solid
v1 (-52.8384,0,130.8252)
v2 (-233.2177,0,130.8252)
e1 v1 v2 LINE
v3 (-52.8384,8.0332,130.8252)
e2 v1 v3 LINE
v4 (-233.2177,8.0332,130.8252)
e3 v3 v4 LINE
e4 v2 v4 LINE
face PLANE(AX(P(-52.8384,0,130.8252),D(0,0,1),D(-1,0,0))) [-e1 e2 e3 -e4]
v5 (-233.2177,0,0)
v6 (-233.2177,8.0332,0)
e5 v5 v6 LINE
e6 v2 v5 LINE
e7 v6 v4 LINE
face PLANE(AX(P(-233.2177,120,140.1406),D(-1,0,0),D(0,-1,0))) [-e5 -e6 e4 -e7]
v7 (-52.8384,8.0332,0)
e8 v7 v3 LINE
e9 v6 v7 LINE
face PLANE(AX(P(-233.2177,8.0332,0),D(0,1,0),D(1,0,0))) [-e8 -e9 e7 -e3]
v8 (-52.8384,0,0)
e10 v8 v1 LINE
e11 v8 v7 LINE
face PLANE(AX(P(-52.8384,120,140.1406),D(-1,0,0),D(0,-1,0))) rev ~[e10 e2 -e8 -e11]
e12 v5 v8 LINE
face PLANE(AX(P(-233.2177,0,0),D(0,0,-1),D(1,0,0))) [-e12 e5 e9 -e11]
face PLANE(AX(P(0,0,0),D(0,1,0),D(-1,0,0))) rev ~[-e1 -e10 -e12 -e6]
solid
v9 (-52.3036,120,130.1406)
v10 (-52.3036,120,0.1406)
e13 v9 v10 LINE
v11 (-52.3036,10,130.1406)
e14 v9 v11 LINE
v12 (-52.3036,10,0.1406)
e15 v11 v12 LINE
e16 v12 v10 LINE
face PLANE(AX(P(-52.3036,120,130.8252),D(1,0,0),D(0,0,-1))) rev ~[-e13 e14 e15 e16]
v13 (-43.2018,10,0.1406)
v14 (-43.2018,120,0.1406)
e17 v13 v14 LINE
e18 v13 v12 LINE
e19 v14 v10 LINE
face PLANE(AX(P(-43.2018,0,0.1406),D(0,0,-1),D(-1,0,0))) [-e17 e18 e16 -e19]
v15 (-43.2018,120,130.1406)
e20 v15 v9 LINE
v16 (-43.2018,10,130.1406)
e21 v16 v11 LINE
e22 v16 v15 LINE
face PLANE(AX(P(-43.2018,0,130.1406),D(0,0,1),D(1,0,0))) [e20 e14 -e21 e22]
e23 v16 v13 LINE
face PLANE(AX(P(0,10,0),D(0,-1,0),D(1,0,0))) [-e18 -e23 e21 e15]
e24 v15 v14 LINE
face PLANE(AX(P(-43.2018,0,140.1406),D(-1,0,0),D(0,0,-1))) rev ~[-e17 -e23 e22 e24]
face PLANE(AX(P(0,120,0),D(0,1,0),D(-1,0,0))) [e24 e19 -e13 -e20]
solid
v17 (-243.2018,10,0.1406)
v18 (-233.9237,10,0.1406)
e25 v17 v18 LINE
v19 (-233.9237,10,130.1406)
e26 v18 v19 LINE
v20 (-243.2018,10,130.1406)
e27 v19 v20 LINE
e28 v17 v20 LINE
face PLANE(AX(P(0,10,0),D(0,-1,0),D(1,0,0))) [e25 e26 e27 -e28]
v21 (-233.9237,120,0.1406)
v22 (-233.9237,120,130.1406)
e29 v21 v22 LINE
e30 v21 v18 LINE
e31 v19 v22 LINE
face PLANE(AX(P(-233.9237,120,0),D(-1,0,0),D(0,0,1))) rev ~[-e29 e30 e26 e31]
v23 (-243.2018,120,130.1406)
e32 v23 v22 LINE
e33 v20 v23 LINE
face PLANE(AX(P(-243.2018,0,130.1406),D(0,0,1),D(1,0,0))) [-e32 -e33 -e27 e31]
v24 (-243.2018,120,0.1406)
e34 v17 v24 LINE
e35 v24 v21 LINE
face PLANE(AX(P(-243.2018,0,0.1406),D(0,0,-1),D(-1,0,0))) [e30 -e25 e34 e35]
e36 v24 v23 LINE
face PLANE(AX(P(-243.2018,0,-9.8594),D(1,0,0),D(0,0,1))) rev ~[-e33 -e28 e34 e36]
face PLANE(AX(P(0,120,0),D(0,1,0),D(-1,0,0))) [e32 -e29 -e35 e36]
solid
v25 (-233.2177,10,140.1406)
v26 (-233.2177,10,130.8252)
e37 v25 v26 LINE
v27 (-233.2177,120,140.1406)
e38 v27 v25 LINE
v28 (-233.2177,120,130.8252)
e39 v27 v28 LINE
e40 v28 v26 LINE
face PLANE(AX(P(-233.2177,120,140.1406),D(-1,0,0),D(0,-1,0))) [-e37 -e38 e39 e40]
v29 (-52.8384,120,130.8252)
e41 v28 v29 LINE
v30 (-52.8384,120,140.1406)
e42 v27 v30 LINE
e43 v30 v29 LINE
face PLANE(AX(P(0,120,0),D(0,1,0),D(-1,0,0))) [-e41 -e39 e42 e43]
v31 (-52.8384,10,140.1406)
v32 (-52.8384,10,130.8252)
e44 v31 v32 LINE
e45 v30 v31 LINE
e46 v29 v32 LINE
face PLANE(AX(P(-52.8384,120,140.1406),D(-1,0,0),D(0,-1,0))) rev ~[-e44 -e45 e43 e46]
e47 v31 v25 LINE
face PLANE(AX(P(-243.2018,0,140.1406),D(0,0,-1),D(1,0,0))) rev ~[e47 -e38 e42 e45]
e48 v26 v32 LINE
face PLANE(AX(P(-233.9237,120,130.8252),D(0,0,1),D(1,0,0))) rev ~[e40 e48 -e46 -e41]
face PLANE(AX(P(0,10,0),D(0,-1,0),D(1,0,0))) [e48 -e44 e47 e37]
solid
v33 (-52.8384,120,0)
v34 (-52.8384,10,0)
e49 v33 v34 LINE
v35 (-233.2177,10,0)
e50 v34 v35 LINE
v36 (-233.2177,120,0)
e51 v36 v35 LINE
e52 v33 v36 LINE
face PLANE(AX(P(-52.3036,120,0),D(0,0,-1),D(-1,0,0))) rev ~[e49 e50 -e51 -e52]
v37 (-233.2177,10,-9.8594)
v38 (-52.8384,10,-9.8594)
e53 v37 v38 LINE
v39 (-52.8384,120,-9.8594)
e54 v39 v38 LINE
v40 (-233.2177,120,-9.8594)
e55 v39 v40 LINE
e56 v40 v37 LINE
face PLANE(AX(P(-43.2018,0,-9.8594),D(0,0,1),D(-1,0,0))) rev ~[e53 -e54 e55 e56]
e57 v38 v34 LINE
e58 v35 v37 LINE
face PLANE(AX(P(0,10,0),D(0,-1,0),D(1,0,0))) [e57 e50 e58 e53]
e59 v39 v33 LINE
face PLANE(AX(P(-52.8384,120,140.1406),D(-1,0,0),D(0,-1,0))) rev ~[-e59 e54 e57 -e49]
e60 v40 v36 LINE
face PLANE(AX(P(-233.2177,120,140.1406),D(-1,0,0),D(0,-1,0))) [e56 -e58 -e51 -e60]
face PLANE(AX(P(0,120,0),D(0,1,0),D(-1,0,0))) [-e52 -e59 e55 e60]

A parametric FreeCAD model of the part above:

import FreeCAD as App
import Part
import Sketcher
from FreeCAD import Vector


def add_polygon(sketch, points):
    """Adds a closed chain of lines whose ends are joined by coincident constraints."""
    first, n = sketch.GeometryCount, len(points)
    for a, b in zip(points, points[1:] + points[:1]):
        sketch.addGeometry(Part.LineSegment(App.Vector(*a, 0), App.Vector(*b, 0)), False)
    for i in range(n):
        sketch.addConstraint(Sketcher.Constraint("Coincident", first + i, 2, first + (i + 1) % n, 1))

doc = App.newDocument("Part")
params = doc.addObject("Spreadsheet::Sheet", "Params")
for row, (alias, value) in enumerate([
    ("sketch1_width", "200 mm"),
    ("sketch1_height", "150 mm"),
    ("pad1_length", "120 mm"),
    ("sketch2_width", "181.62 mm"),
    ("pocket1_length", "110 mm"),
    ("sketch3_height", "120 mm"),
    ("pocket2_length", "10 mm"),
    ("sketch4_height", "120 mm"),
    ("pocket3_length", "10 mm"),
    ("sketch5_height", "120 mm"),
    ("pocket4_length", "10 mm"),
    ("sketch6_height", "120 mm"),
    ("pocket5_length", "10 mm"),
    ("sketch7_height", "130 mm"),
    ("pocket6_length", "10 mm"),
    ("pocket7_length", "10 mm"),
    ("pocket8_length", "10 mm"),
    ("pocket9_length", "10 mm"),
], start=1):
    params.set(f"A{row}", alias)
    params.set(f"B{row}", "=" + value)
    params.setAlias(f"B{row}", alias)

body = doc.addObject("PartDesign::Body", "Body")
body.AllowCompound = True

# Sketch on XZ plane
sketch1 = body.newObject("Sketcher::SketchObject", "Sketch")
sketch1.AttachmentSupport = (doc.getObject("XZ_Plane"), [""])
sketch1.MapMode = "FlatFace"
add_polygon(sketch1, [(-243.2018, -9.8594), (-243.2018, 140.1406), (-43.2018, 140.1406), (-43.2018, -9.8594)])  # lines 0-3
sketch1.addConstraint(Sketcher.Constraint("Vertical", 0))
sketch1.addConstraint(Sketcher.Constraint("Horizontal", 1))
sketch1.addConstraint(Sketcher.Constraint("Vertical", 2))
sketch1.addConstraint(Sketcher.Constraint("Horizontal", 3))
sketch1.addConstraint(Sketcher.Constraint("DistanceX", 1, 1, 1, 2, 200.0))
sketch1.addConstraint(Sketcher.Constraint("DistanceY", 0, 1, 0, 2, 150.0))
sketch1.addConstraint(Sketcher.Constraint("DistanceX", 0, 2, -1, 1, 243.2018))
sketch1.addConstraint(Sketcher.Constraint("DistanceY", -1, 1, 0, 2, 140.1406))
sketch1.setExpression("Constraints[8]", "Params.sketch1_width")
sketch1.setExpression("Constraints[9]", "Params.sketch1_height")
pad1 = body.newObject("PartDesign::Pad", "Pad")
pad1.Profile = sketch1
pad1.setExpression("Length", "Params.pad1_length")
pad1.Reversed = True

# Sketch on XZ plane
sketch2 = body.newObject("Sketcher::SketchObject", "Sketch001")
sketch2.AttachmentSupport = (doc.getObject("XZ_Plane"), [""])
sketch2.MapMode = "FlatFace"
sketch2.AttachmentOffset = App.Placement(Vector(0, 0, -120), App.Rotation())
add_polygon(sketch2, [(-233.9237, 0), (-233.9237, 130.8252), (-52.3036, 130.8252), (-52.3036, 0)])  # lines 0-3
sketch2.addConstraint(Sketcher.Constraint("Vertical", 0))
sketch2.addConstraint(Sketcher.Constraint("Horizontal", 1))
sketch2.addConstraint(Sketcher.Constraint("Vertical", 2))
sketch2.addConstraint(Sketcher.Constraint("Horizontal", 3))
sketch2.addConstraint(Sketcher.Constraint("PointOnObject", 2, 2, -1))
sketch2.addConstraint(Sketcher.Constraint("DistanceX", 1, 1, 1, 2, 181.62))
sketch2.addConstraint(Sketcher.Constraint("DistanceY", 0, 1, 0, 2, 130.8252))
sketch2.addConstraint(Sketcher.Constraint("DistanceX", 0, 2, -1, 1, 233.9237))
sketch2.setExpression("Constraints[9]", "Params.sketch2_width")
pocket1 = body.newObject("PartDesign::Pocket", "Pocket")
pocket1.Profile = sketch2
pocket1.setExpression("Length", "Params.pocket1_length")
pocket1.Reversed = True

# Sketch on XY plane
sketch3 = body.newObject("Sketcher::SketchObject", "Sketch002")
sketch3.AttachmentSupport = (doc.getObject("XY_Plane"), [""])
sketch3.MapMode = "FlatFace"
sketch3.AttachmentOffset = App.Placement(Vector(0, 0, 140.1406), App.Rotation())
add_polygon(sketch3, [(-243.2018, 120), (-243.2018, 0), (-233.2177, 0), (-233.2177, 120)])  # lines 0-3
sketch3.addConstraint(Sketcher.Constraint("Vertical", 0))
sketch3.addConstraint(Sketcher.Constraint("Horizontal", 1))
sketch3.addConstraint(Sketcher.Constraint("Vertical", 2))
sketch3.addConstraint(Sketcher.Constraint("Horizontal", 3))
sketch3.addConstraint(Sketcher.Constraint("PointOnObject", 0, 2, -1))
sketch3.addConstraint(Sketcher.Constraint("DistanceY", 0, 2, 0, 1, 120.0))
sketch3.addConstraint(Sketcher.Constraint("DistanceX", 1, 1, 1, 2, 9.984))
sketch3.addConstraint(Sketcher.Constraint("DistanceX", 0, 2, -1, 1, 243.2018))
sketch3.setExpression("Constraints[9]", "Params.sketch3_height")
pocket2 = body.newObject("PartDesign::Pocket", "Pocket001")
pocket2.Profile = sketch3
pocket2.setExpression("Length", "Params.pocket2_length")

# Sketch on XY plane
sketch4 = body.newObject("Sketcher::SketchObject", "Sketch003")
sketch4.AttachmentSupport = (doc.getObject("XY_Plane"), [""])
sketch4.MapMode = "FlatFace"
sketch4.AttachmentOffset = App.Placement(Vector(0, 0, 140.1406), App.Rotation())
add_polygon(sketch4, [(-43.2018, 0), (-43.2018, 120), (-52.8384, 120), (-52.8384, 0)])  # lines 0-3
sketch4.addConstraint(Sketcher.Constraint("Vertical", 0))
sketch4.addConstraint(Sketcher.Constraint("Horizontal", 1))
sketch4.addConstraint(Sketcher.Constraint("Vertical", 2))
sketch4.addConstraint(Sketcher.Constraint("Horizontal", 3))
sketch4.addConstraint(Sketcher.Constraint("PointOnObject", 2, 2, -1))
sketch4.addConstraint(Sketcher.Constraint("DistanceY", 0, 1, 0, 2, 120.0))
sketch4.addConstraint(Sketcher.Constraint("DistanceX", 1, 2, 1, 1, 9.6366))
sketch4.addConstraint(Sketcher.Constraint("DistanceX", 0, 2, -1, 1, 43.2018))
sketch4.setExpression("Constraints[9]", "Params.sketch4_height")
pocket3 = body.newObject("PartDesign::Pocket", "Pocket002")
pocket3.Profile = sketch4
pocket3.setExpression("Length", "Params.pocket3_length")

# Sketch on XY plane
sketch5 = body.newObject("Sketcher::SketchObject", "Sketch004")
sketch5.AttachmentSupport = (doc.getObject("XY_Plane"), [""])
sketch5.MapMode = "FlatFace"
sketch5.AttachmentOffset = App.Placement(Vector(0, 0, -9.8594), App.Rotation())
add_polygon(sketch5, [(-52.8384, 120), (-43.2018, 120), (-43.2018, 0), (-52.8384, 0)])  # lines 0-3
sketch5.addConstraint(Sketcher.Constraint("Horizontal", 0))
sketch5.addConstraint(Sketcher.Constraint("Vertical", 1))
sketch5.addConstraint(Sketcher.Constraint("Horizontal", 2))
sketch5.addConstraint(Sketcher.Constraint("Vertical", 3))
sketch5.addConstraint(Sketcher.Constraint("PointOnObject", 1, 2, -1))
sketch5.addConstraint(Sketcher.Constraint("DistanceY", 1, 2, 1, 1, 120.0))
sketch5.addConstraint(Sketcher.Constraint("DistanceX", 0, 1, 0, 2, 9.6366))
sketch5.addConstraint(Sketcher.Constraint("DistanceX", 0, 2, -1, 1, 43.2018))
sketch5.setExpression("Constraints[9]", "Params.sketch5_height")
pocket4 = body.newObject("PartDesign::Pocket", "Pocket003")
pocket4.Profile = sketch5
pocket4.setExpression("Length", "Params.pocket4_length")
pocket4.Reversed = True

# Sketch on XY plane
sketch6 = body.newObject("Sketcher::SketchObject", "Sketch005")
sketch6.AttachmentSupport = (doc.getObject("XY_Plane"), [""])
sketch6.MapMode = "FlatFace"
sketch6.AttachmentOffset = App.Placement(Vector(0, 0, -9.8594), App.Rotation())
add_polygon(sketch6, [(-233.2177, 0), (-243.2018, 0), (-243.2018, 120), (-233.2177, 120)])  # lines 0-3
sketch6.addConstraint(Sketcher.Constraint("Horizontal", 0))
sketch6.addConstraint(Sketcher.Constraint("Vertical", 1))
sketch6.addConstraint(Sketcher.Constraint("Horizontal", 2))
sketch6.addConstraint(Sketcher.Constraint("Vertical", 3))
sketch6.addConstraint(Sketcher.Constraint("PointOnObject", 0, 2, -1))
sketch6.addConstraint(Sketcher.Constraint("DistanceY", 1, 1, 1, 2, 120.0))
sketch6.addConstraint(Sketcher.Constraint("DistanceX", 0, 2, 0, 1, 9.984))
sketch6.addConstraint(Sketcher.Constraint("DistanceX", 0, 2, -1, 1, 243.2018))
sketch6.setExpression("Constraints[9]", "Params.sketch6_height")
pocket5 = body.newObject("PartDesign::Pocket", "Pocket004")
pocket5.Profile = sketch6
pocket5.setExpression("Length", "Params.pocket5_length")
pocket5.Reversed = True

# Sketch on XZ plane
sketch7 = body.newObject("Sketcher::SketchObject", "Sketch006")
sketch7.AttachmentSupport = (doc.getObject("XZ_Plane"), [""])
sketch7.MapMode = "FlatFace"
add_polygon(sketch7, [(-233.2177, 0.1406), (-233.2177, 130.1406), (-243.2018, 130.1406), (-243.2018, 0.1406)])  # lines 0-3
sketch7.addConstraint(Sketcher.Constraint("Vertical", 0))
sketch7.addConstraint(Sketcher.Constraint("Horizontal", 1))
sketch7.addConstraint(Sketcher.Constraint("Vertical", 2))
sketch7.addConstraint(Sketcher.Constraint("Horizontal", 3))
sketch7.addConstraint(Sketcher.Constraint("DistanceY", 0, 1, 0, 2, 130.0))
sketch7.addConstraint(Sketcher.Constraint("DistanceX", 1, 2, 1, 1, 9.984))
sketch7.addConstraint(Sketcher.Constraint("DistanceX", 0, 2, -1, 1, 233.2177))
sketch7.addConstraint(Sketcher.Constraint("DistanceY", -1, 1, 0, 2, 130.1406))
sketch7.setExpression("Constraints[8]", "Params.sketch7_height")
pocket6 = body.newObject("PartDesign::Pocket", "Pocket005")
pocket6.Profile = sketch7
pocket6.setExpression("Length", "Params.pocket6_length")

# Sketch on XZ plane
sketch8 = body.newObject("Sketcher::SketchObject", "Sketch007")
sketch8.AttachmentSupport = (doc.getObject("XZ_Plane"), [""])
sketch8.MapMode = "FlatFace"
add_polygon(sketch8, [(-43.2018, 0), (-43.2018, 130.1406), (-52.8384, 130.1406), (-52.8384, 0)])  # lines 0-3
sketch8.addConstraint(Sketcher.Constraint("Vertical", 0))
sketch8.addConstraint(Sketcher.Constraint("Horizontal", 1))
sketch8.addConstraint(Sketcher.Constraint("Vertical", 2))
sketch8.addConstraint(Sketcher.Constraint("Horizontal", 3))
sketch8.addConstraint(Sketcher.Constraint("PointOnObject", 2, 2, -1))
sketch8.addConstraint(Sketcher.Constraint("DistanceX", 1, 2, 1, 1, 9.6366))
sketch8.addConstraint(Sketcher.Constraint("DistanceY", 0, 1, 0, 2, 130.1406))
sketch8.addConstraint(Sketcher.Constraint("DistanceX", 0, 2, -1, 1, 43.2018))
pocket7 = body.newObject("PartDesign::Pocket", "Pocket006")
pocket7.Profile = sketch8
pocket7.setExpression("Length", "Params.pocket7_length")

# Sketch on XZ plane
sketch9 = body.newObject("Sketcher::SketchObject", "Sketch008")
sketch9.AttachmentSupport = (doc.getObject("XZ_Plane"), [""])
sketch9.MapMode = "FlatFace"
add_polygon(sketch9, [(-52.8384, 0), (-233.2177, 0), (-233.2177, -9.8594), (-52.8384, -9.8594)])  # lines 0-3
sketch9.addConstraint(Sketcher.Constraint("Horizontal", 0))
sketch9.addConstraint(Sketcher.Constraint("Vertical", 1))
sketch9.addConstraint(Sketcher.Constraint("Horizontal", 2))
sketch9.addConstraint(Sketcher.Constraint("Vertical", 3))
sketch9.addConstraint(Sketcher.Constraint("PointOnObject", 0, 2, -1))
sketch9.addConstraint(Sketcher.Constraint("DistanceX", 0, 2, 0, 1, 180.3793))
sketch9.addConstraint(Sketcher.Constraint("DistanceY", 1, 2, 1, 1, 9.8594))
sketch9.addConstraint(Sketcher.Constraint("DistanceX", 0, 2, -1, 1, 233.2177))
pocket8 = body.newObject("PartDesign::Pocket", "Pocket007")
pocket8.Profile = sketch9
pocket8.setExpression("Length", "Params.pocket8_length")

# Sketch on XZ plane
sketch10 = body.newObject("Sketcher::SketchObject", "Sketch009")
sketch10.AttachmentSupport = (doc.getObject("XZ_Plane"), [""])
sketch10.MapMode = "FlatFace"
add_polygon(sketch10, [(-52.8384, 130.8252), (-52.8384, 140.1406), (-233.2177, 140.1406), (-233.2177, 130.8252)])  # lines 0-3
sketch10.addConstraint(Sketcher.Constraint("Vertical", 0))
sketch10.addConstraint(Sketcher.Constraint("Horizontal", 1))
sketch10.addConstraint(Sketcher.Constraint("Vertical", 2))
sketch10.addConstraint(Sketcher.Constraint("Horizontal", 3))
sketch10.addConstraint(Sketcher.Constraint("DistanceX", 1, 2, 1, 1, 180.3793))
sketch10.addConstraint(Sketcher.Constraint("DistanceY", 0, 1, 0, 2, 9.3154))
sketch10.addConstraint(Sketcher.Constraint("DistanceX", 0, 2, -1, 1, 52.8384))
sketch10.addConstraint(Sketcher.Constraint("DistanceY", -1, 1, 0, 2, 140.1406))
pocket9 = body.newObject("PartDesign::Pocket", "Pocket008")
pocket9.Profile = sketch10
pocket9.setExpression("Length", "Params.pocket9_length")

# Sketch on XY plane
sketch11 = body.newObject("Sketcher::SketchObject", "Sketch010")
sketch11.AttachmentSupport = (doc.getObject("XY_Plane"), [""])
sketch11.MapMode = "FlatFace"
add_polygon(sketch11, [(-233.2177, 10), (-52.8384, 10), (-52.8384, 8.0332), (-233.2177, 8.0332)])  # lines 0-3
sketch11.addConstraint(Sketcher.Constraint("Horizontal", 0))
sketch11.addConstraint(Sketcher.Constraint("Vertical", 1))
sketch11.addConstraint(Sketcher.Constraint("Horizontal", 2))
sketch11.addConstraint(Sketcher.Constraint("Vertical", 3))
sketch11.addConstraint(Sketcher.Constraint("DistanceY", -1, 1, 0, 2, 10.0))
sketch11.addConstraint(Sketcher.Constraint("DistanceX", 0, 1, 0, 2, 180.3793))
sketch11.addConstraint(Sketcher.Constraint("DistanceY", 1, 2, 1, 1, 1.9668))
sketch11.addConstraint(Sketcher.Constraint("DistanceX", 0, 2, -1, 1, 52.8384))
pocket10 = body.newObject("PartDesign::Pocket", "Pocket009")
pocket10.Profile = sketch11
pocket10.Type = "ThroughAll"
pocket10.Reversed = True

doc.recompute()
